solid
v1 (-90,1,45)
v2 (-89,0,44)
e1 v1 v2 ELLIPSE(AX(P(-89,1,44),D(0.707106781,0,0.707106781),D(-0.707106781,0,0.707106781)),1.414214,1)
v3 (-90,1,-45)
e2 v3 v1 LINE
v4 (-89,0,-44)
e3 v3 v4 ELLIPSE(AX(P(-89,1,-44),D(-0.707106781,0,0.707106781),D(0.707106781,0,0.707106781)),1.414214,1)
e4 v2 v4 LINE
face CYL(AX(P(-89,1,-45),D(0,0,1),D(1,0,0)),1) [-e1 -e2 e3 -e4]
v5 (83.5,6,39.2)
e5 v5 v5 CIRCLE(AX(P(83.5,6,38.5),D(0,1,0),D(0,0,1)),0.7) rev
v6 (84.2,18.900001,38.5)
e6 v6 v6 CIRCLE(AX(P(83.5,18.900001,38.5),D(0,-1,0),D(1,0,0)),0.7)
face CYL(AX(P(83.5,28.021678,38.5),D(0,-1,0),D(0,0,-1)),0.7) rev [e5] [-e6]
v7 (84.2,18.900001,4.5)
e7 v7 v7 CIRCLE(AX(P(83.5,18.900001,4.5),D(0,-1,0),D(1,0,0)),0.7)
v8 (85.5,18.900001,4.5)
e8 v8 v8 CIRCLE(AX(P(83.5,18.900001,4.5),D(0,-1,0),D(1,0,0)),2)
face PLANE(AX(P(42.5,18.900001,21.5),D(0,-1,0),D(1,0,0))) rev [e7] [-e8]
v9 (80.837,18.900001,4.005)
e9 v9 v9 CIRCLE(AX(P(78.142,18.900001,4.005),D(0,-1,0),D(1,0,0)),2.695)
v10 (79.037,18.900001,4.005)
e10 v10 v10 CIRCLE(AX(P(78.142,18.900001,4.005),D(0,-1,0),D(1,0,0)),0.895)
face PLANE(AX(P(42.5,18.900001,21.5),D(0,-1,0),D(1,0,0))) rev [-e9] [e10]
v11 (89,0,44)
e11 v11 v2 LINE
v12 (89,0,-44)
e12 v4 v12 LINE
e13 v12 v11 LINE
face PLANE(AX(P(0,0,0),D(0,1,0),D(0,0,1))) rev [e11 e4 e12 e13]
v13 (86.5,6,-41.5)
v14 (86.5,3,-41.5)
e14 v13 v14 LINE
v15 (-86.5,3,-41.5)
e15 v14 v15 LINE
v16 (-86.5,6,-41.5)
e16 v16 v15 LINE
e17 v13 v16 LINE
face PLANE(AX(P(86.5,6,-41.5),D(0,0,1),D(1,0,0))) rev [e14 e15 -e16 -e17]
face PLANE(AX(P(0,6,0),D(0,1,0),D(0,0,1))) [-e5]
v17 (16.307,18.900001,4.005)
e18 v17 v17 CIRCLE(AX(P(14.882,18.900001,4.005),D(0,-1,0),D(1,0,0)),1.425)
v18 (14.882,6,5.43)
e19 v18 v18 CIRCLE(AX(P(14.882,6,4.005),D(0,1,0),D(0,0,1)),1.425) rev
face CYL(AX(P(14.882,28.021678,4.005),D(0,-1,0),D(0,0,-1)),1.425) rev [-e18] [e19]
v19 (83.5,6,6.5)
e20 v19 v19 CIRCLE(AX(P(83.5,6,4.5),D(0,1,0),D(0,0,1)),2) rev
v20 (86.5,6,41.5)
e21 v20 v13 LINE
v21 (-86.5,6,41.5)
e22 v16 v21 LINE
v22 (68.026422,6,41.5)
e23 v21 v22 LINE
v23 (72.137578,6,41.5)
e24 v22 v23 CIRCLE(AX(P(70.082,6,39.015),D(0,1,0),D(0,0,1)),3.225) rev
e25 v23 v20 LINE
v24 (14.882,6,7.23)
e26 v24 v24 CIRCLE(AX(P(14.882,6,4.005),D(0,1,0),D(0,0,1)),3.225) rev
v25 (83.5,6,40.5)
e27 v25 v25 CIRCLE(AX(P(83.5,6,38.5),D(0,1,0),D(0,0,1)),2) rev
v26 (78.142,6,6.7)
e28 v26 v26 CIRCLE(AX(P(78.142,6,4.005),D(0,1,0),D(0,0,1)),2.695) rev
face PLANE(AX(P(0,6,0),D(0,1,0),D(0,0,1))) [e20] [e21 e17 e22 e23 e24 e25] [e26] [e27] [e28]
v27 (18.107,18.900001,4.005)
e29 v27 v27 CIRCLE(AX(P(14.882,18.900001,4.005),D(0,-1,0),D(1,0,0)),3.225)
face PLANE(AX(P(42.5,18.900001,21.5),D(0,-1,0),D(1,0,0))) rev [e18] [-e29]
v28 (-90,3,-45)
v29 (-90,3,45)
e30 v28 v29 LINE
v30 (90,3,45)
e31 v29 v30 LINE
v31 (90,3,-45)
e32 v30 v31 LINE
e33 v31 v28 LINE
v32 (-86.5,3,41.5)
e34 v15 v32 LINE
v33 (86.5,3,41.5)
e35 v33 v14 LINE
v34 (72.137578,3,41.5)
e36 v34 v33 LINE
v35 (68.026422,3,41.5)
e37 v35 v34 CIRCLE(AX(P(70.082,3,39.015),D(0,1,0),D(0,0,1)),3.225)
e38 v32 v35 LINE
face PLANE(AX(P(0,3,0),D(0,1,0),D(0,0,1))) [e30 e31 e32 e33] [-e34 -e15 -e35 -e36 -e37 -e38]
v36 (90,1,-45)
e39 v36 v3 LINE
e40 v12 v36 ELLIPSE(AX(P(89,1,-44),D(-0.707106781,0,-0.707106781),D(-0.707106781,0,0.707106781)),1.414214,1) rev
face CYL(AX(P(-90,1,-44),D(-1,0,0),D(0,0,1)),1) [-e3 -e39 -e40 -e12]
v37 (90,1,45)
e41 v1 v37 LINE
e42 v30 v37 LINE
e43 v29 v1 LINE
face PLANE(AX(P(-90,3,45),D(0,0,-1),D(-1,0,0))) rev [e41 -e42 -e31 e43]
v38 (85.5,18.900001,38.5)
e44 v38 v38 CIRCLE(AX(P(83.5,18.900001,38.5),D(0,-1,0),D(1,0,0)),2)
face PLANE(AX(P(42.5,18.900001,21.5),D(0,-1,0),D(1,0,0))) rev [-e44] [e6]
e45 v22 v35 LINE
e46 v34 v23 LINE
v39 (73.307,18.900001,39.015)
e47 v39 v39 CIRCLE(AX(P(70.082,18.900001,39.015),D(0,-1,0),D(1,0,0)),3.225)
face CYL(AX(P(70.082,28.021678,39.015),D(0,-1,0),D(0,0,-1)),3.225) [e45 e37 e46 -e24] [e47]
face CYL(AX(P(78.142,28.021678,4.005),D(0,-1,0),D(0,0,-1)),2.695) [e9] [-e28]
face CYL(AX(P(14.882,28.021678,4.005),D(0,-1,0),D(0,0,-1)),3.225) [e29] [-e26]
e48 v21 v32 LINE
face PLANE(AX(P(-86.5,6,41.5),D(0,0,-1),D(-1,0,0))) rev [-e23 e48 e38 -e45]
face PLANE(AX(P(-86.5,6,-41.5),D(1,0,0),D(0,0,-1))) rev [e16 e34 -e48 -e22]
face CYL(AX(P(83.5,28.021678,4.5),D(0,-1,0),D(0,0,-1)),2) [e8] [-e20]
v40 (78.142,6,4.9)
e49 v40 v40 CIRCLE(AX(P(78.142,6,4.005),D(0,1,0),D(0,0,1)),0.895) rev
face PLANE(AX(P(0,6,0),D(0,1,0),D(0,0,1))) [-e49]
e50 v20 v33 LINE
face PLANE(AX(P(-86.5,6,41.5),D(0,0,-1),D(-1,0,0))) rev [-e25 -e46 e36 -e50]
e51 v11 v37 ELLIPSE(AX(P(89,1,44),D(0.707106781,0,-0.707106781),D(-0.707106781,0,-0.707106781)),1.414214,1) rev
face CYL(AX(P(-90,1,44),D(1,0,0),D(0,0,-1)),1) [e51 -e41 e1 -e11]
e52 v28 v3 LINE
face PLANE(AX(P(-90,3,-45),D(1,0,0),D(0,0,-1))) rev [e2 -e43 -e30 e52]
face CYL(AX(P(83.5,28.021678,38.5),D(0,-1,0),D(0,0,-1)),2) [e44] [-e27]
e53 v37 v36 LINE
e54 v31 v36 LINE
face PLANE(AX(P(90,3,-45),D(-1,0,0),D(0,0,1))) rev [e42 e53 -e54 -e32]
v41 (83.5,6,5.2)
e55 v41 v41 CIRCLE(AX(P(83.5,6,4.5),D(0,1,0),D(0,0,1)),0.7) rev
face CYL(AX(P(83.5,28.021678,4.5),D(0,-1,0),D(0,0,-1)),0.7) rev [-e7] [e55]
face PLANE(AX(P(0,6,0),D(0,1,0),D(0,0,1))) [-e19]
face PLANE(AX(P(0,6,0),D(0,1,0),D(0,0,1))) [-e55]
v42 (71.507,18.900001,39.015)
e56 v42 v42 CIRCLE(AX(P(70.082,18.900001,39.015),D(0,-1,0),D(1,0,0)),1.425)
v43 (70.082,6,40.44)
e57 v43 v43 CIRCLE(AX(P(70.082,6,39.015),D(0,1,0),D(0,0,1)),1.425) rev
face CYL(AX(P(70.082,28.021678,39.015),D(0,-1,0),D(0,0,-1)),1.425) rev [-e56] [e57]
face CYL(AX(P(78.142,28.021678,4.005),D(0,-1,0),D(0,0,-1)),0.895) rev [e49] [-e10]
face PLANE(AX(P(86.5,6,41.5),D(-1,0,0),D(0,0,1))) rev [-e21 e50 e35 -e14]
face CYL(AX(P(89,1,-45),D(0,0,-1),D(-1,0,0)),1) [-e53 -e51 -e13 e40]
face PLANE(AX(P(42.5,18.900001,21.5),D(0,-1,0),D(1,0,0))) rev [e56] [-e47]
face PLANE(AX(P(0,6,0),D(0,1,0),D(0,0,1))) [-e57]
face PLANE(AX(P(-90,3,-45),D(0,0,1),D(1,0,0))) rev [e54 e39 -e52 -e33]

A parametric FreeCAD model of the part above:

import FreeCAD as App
import Part
import Sketcher
from FreeCAD import Vector


def edges_at(feature, points):
    """Names of the edges that pass closest to the given points."""
    edges = feature.Shape.Edges
    near = lambda p: min(range(len(edges)), key=lambda i: edges[i].distToShape(Part.Vertex(*p))[0])
    return sorted({f"Edge{near(p) + 1}" for p in points})

doc = App.newDocument("Part")
body = doc.addObject("PartDesign::Body", "Body")

# Sketch on XZ plane
sketch1 = doc.addObject("Sketcher::SketchObject", "Sketch")
body.addObject(sketch1)
sketch1.AttachmentSupport = (doc.XZ_Plane, [""])
sketch1.MapMode = "FlatFace"
sketch1.addGeometry([
    Part.LineSegment(Vector(-90, -45, 0), Vector(-90, 45, 0)),
    Part.LineSegment(Vector(-90, 45, 0), Vector(90, 45, 0)),
    Part.LineSegment(Vector(90, 45, 0), Vector(90, -45, 0)),
    Part.LineSegment(Vector(90, -45, 0), Vector(-90, -45, 0)),
], False)
sketch1.addConstraint([
    Sketcher.Constraint("Coincident", 0, 2, 1, 1),
    Sketcher.Constraint("Coincident", 1, 2, 2, 1),
    Sketcher.Constraint("Coincident", 2, 2, 3, 1),
    Sketcher.Constraint("Coincident", 3, 2, 0, 1),
    Sketcher.Constraint("Vertical", 0),
    Sketcher.Constraint("Horizontal", 1),
    Sketcher.Constraint("Vertical", 2),
    Sketcher.Constraint("Horizontal", 3),
    Sketcher.Constraint("Symmetric", 0, 2, 2, 2, -1, 1),
    Sketcher.Constraint("DistanceX", 1, 1, 1, 2, 180.0),
    Sketcher.Constraint("DistanceY", 0, 1, 0, 2, 90.0),
])
pad1 = doc.addObject("PartDesign::Pad", "Pad")
body.addObject(pad1)
pad1.Profile = sketch1
pad1.Length = 3
pad1.Reversed = True
doc.recompute()

fillet = doc.addObject("PartDesign::Fillet", "Fillet")
body.addObject(fillet)
fillet.Base = (pad1, edges_at(pad1, [
    (0, 0, -45),
    (90, 0, 0),
    (0, 0, 45),
    (-90, 0, 0),
]))
fillet.Radius = 1

# Sketch on XZ plane
sketch2 = doc.addObject("Sketcher::SketchObject", "Sketch001")
body.addObject(sketch2)
sketch2.AttachmentSupport = (doc.XZ_Plane, [""])
sketch2.MapMode = "FlatFace"
sketch2.AttachmentOffset = App.Placement(Vector(0, 0, -3), App.Rotation())
sketch2.addGeometry([
    Part.LineSegment(Vector(-86, -42, 0), Vector(-86, 42, 0)),
    Part.LineSegment(Vector(-86, 42, 0), Vector(86, 42, 0)),
    Part.LineSegment(Vector(86, 42, 0), Vector(86, -42, 0)),
    Part.LineSegment(Vector(86, -42, 0), Vector(-86, -42, 0)),
], False)
sketch2.addConstraint([
    Sketcher.Constraint("Coincident", 0, 2, 1, 1),
    Sketcher.Constraint("Coincident", 1, 2, 2, 1),
    Sketcher.Constraint("Coincident", 2, 2, 3, 1),
    Sketcher.Constraint("Coincident", 3, 2, 0, 1),
    Sketcher.Constraint("Vertical", 0),
    Sketcher.Constraint("Horizontal", 1),
    Sketcher.Constraint("Vertical", 2),
    Sketcher.Constraint("Horizontal", 3),
    Sketcher.Constraint("Symmetric", 0, 2, 2, 2, -1, 1),
    Sketcher.Constraint("DistanceX", 1, 1, 1, 2, 173.0),
    Sketcher.Constraint("DistanceY", 0, 1, 0, 2, 83.0),
])
pad2 = doc.addObject("PartDesign::Pad", "Pad001")
body.addObject(pad2)
pad2.Profile = sketch2
pad2.Length = 3
pad2.Reversed = True

# Sketch on XZ plane
sketch3 = doc.addObject("Sketcher::SketchObject", "Sketch002")
body.addObject(sketch3)
sketch3.AttachmentSupport = (doc.XZ_Plane, [""])
sketch3.MapMode = "FlatFace"
sketch3.AttachmentOffset = App.Placement(Vector(0, 0, -3), App.Rotation())
sketch3.addGeometry([
    Part.Circle(Vector(78.1, 4, 0), Vector(0, 0, 1), 2.7),  # 0
    Part.Circle(Vector(78.1, 4, 0), Vector(0, 0, 1), 0.9),  # 1
    Part.Circle(Vector(83.5, 4.5, 0), Vector(0, 0, 1), 2),  # 2
    Part.Circle(Vector(83.5, 4.5, 0), Vector(0, 0, 1), 0.7),  # 3
    Part.Circle(Vector(83.5, 38.5, 0), Vector(0, 0, 1), 2),  # 4
    Part.Circle(Vector(83.5, 38.5, 0), Vector(0, 0, 1), 0.7),  # 5
    Part.Circle(Vector(14.9, 4, 0), Vector(0, 0, 1), 3.2),  # 6
    Part.Circle(Vector(14.9, 4, 0), Vector(0, 0, 1), 1.4),  # 7
    Part.Circle(Vector(70.1, 39, 0), Vector(0, 0, 1), 3.2),  # 8
    Part.Circle(Vector(70.1, 39, 0), Vector(0, 0, 1), 1.4),  # 9
], False)
sketch3.addConstraint([
    Sketcher.Constraint("Coincident", 1, 3, 0, 3),
    Sketcher.Constraint("Coincident", 3, 3, 2, 3),
    Sketcher.Constraint("Coincident", 5, 3, 4, 3),
    Sketcher.Constraint("Coincident", 7, 3, 6, 3),
    Sketcher.Constraint("Coincident", 9, 3, 8, 3),
    Sketcher.Constraint("Equal", 2, 4),
    Sketcher.Constraint("Equal", 3, 5),
    Sketcher.Constraint("Equal", 6, 8),
    Sketcher.Constraint("Equal", 7, 9),
    Sketcher.Constraint("Horizontal", 1, 3, 6, 3),
    Sketcher.Constraint("Vertical", 3, 3, 4, 3),
    Sketcher.Constraint("Diameter", 2, 4.0),
    Sketcher.Constraint("Diameter", 3, 1.4),
    Sketcher.Constraint("Diameter", 0, 5.39),
    Sketcher.Constraint("Diameter", 1, 1.79),
    Sketcher.Constraint("Diameter", 6, 6.45),
    Sketcher.Constraint("Diameter", 7, 2.85),
    Sketcher.Constraint("DistanceY", 2, 3, 4, 3, 34.0),
    Sketcher.Constraint("DistanceX", -1, 1, 2, 3, 83.5),
    Sketcher.Constraint("DistanceY", -1, 1, 2, 3, 4.5),
    Sketcher.Constraint("DistanceX", 6, 3, 0, 3, 63.26),
    Sketcher.Constraint("DistanceX", 8, 3, 0, 3, 8.06),
    Sketcher.Constraint("DistanceY", 0, 3, 8, 3, 35.01),
    Sketcher.Constraint("DistanceX", -1, 1, 0, 3, 78.142),
    Sketcher.Constraint("DistanceY", -1, 1, 0, 3, 4.005),
])
pad3 = doc.addObject("PartDesign::Pad", "Pad002")
body.addObject(pad3)
pad3.Profile = sketch3
pad3.Length = 15.900001
pad3.Reversed = True

doc.recompute()
